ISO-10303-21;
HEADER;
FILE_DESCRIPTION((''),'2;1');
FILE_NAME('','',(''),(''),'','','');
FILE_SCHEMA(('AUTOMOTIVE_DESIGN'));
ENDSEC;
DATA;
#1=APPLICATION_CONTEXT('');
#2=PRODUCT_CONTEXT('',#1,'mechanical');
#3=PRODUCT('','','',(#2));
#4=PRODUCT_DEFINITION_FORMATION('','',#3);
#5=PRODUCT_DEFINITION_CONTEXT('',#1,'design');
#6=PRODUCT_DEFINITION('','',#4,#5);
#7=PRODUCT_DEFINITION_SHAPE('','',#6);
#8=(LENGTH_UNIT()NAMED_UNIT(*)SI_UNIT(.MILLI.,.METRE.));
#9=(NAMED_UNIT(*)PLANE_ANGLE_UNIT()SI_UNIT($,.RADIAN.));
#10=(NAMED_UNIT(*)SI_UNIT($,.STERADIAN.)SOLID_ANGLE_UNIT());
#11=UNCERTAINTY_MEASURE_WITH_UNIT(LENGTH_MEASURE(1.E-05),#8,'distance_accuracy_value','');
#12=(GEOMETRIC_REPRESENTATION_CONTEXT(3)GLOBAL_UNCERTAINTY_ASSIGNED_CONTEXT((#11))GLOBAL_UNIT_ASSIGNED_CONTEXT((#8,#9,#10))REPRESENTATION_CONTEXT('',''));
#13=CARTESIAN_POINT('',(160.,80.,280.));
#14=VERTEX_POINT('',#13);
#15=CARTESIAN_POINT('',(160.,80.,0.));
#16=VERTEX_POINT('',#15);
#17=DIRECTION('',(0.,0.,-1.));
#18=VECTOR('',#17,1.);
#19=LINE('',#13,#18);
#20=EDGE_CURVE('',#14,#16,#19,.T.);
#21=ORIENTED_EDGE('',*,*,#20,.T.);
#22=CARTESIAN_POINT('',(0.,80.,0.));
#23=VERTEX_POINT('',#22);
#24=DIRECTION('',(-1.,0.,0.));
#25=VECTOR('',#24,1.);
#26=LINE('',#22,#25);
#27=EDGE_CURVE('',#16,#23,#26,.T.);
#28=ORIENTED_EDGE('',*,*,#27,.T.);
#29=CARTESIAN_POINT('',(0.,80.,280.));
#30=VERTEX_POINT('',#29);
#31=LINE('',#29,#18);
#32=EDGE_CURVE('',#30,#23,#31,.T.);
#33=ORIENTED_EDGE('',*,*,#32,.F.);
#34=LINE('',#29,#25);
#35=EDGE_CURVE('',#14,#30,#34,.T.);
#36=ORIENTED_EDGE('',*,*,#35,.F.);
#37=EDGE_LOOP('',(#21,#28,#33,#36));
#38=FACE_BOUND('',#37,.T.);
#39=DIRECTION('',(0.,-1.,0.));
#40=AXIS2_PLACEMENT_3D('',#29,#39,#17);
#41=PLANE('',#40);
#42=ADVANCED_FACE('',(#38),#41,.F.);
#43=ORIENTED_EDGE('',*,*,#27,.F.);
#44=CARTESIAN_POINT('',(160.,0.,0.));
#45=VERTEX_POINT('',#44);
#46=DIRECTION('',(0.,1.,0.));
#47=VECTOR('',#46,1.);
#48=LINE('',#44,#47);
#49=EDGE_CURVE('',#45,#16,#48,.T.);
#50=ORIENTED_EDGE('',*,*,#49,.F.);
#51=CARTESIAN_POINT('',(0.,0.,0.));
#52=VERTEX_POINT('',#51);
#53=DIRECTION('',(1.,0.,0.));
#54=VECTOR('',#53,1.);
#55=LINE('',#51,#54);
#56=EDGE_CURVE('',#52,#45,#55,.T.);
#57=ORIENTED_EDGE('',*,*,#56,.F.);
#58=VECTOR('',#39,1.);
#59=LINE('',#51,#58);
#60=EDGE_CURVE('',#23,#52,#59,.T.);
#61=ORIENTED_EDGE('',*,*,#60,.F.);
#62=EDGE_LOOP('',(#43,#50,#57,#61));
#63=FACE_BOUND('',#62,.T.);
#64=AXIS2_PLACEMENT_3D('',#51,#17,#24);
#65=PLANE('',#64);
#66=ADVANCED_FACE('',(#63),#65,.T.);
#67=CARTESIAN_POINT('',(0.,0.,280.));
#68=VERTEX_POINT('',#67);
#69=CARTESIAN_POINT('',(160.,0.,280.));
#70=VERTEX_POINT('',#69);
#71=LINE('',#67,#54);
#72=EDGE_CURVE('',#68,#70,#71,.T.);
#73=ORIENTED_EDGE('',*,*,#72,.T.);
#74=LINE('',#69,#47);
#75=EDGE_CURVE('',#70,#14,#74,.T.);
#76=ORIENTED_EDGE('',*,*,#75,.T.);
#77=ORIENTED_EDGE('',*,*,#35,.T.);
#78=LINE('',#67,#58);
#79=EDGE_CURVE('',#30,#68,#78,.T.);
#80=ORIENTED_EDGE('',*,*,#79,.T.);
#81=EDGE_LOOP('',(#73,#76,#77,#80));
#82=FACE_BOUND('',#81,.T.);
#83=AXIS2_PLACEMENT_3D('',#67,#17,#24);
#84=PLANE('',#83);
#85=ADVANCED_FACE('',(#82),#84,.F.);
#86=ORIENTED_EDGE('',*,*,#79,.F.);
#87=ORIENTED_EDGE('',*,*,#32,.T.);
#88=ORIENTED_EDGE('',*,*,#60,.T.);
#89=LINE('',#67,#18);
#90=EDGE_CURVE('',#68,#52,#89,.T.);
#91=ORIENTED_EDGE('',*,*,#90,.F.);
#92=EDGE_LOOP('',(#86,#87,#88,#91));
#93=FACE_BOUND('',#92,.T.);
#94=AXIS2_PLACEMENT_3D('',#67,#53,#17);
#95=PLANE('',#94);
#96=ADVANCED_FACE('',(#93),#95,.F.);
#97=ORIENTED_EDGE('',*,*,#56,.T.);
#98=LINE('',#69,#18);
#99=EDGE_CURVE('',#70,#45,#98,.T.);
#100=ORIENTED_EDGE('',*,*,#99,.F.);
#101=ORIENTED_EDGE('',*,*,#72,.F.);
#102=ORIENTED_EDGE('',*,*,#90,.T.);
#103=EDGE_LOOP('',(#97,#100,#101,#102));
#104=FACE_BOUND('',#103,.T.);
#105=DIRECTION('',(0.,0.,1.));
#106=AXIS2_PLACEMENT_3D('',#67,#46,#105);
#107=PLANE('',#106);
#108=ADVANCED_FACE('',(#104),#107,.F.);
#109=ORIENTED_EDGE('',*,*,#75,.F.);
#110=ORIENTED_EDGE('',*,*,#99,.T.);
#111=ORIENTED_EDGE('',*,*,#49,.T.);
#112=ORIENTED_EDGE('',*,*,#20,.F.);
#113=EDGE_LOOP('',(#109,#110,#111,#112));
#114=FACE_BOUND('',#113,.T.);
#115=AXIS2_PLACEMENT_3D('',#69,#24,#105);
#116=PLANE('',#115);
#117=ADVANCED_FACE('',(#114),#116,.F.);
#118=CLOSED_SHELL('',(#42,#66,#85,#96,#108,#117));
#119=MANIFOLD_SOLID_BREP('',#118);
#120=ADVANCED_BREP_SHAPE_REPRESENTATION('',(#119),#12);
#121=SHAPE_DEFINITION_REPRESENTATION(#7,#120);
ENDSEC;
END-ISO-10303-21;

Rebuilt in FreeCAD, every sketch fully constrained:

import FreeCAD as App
import Part
import Sketcher

V = App.Vector

doc = App.newDocument("Part")
body = doc.addObject("PartDesign::Body", "Body")

# Sketch on XY plane
sketch1 = doc.addObject("Sketcher::SketchObject", "Sketch")
body.addObject(sketch1)
sketch1.AttachmentSupport = (doc.XY_Plane, [""])
sketch1.MapMode = "FlatFace"
sketch1.addGeometry(Part.LineSegment(V(0, 80, 0), V(0, 0, 0)), False)
sketch1.addGeometry(Part.LineSegment(V(0, 0, 0), V(160, 0, 0)), False)
sketch1.addGeometry(Part.LineSegment(V(160, 0, 0), V(160, 80, 0)), False)
sketch1.addGeometry(Part.LineSegment(V(160, 80, 0), V(0, 80, 0)), False)
sketch1.addConstraint(Sketcher.Constraint("Coincident", 0, 2, 1, 1))
sketch1.addConstraint(Sketcher.Constraint("Coincident", 1, 2, 2, 1))
sketch1.addConstraint(Sketcher.Constraint("Coincident", 2, 2, 3, 1))
sketch1.addConstraint(Sketcher.Constraint("Coincident", 3, 2, 0, 1))
sketch1.addConstraint(Sketcher.Constraint("Vertical", 0))
sketch1.addConstraint(Sketcher.Constraint("Horizontal", 1))
sketch1.addConstraint(Sketcher.Constraint("Vertical", 2))
sketch1.addConstraint(Sketcher.Constraint("Horizontal", 3))
sketch1.addConstraint(Sketcher.Constraint("Coincident", 0, 2, -1, 1))
sketch1.addConstraint(Sketcher.Constraint("DistanceX", 1, 1, 1, 2, 160.0))
sketch1.addConstraint(Sketcher.Constraint("DistanceY", 0, 2, 0, 1, 80.0))
pad1 = doc.addObject("PartDesign::Pad", "Pad")
body.addObject(pad1)
pad1.Profile = sketch1
pad1.Length = 280

doc.recompute()
